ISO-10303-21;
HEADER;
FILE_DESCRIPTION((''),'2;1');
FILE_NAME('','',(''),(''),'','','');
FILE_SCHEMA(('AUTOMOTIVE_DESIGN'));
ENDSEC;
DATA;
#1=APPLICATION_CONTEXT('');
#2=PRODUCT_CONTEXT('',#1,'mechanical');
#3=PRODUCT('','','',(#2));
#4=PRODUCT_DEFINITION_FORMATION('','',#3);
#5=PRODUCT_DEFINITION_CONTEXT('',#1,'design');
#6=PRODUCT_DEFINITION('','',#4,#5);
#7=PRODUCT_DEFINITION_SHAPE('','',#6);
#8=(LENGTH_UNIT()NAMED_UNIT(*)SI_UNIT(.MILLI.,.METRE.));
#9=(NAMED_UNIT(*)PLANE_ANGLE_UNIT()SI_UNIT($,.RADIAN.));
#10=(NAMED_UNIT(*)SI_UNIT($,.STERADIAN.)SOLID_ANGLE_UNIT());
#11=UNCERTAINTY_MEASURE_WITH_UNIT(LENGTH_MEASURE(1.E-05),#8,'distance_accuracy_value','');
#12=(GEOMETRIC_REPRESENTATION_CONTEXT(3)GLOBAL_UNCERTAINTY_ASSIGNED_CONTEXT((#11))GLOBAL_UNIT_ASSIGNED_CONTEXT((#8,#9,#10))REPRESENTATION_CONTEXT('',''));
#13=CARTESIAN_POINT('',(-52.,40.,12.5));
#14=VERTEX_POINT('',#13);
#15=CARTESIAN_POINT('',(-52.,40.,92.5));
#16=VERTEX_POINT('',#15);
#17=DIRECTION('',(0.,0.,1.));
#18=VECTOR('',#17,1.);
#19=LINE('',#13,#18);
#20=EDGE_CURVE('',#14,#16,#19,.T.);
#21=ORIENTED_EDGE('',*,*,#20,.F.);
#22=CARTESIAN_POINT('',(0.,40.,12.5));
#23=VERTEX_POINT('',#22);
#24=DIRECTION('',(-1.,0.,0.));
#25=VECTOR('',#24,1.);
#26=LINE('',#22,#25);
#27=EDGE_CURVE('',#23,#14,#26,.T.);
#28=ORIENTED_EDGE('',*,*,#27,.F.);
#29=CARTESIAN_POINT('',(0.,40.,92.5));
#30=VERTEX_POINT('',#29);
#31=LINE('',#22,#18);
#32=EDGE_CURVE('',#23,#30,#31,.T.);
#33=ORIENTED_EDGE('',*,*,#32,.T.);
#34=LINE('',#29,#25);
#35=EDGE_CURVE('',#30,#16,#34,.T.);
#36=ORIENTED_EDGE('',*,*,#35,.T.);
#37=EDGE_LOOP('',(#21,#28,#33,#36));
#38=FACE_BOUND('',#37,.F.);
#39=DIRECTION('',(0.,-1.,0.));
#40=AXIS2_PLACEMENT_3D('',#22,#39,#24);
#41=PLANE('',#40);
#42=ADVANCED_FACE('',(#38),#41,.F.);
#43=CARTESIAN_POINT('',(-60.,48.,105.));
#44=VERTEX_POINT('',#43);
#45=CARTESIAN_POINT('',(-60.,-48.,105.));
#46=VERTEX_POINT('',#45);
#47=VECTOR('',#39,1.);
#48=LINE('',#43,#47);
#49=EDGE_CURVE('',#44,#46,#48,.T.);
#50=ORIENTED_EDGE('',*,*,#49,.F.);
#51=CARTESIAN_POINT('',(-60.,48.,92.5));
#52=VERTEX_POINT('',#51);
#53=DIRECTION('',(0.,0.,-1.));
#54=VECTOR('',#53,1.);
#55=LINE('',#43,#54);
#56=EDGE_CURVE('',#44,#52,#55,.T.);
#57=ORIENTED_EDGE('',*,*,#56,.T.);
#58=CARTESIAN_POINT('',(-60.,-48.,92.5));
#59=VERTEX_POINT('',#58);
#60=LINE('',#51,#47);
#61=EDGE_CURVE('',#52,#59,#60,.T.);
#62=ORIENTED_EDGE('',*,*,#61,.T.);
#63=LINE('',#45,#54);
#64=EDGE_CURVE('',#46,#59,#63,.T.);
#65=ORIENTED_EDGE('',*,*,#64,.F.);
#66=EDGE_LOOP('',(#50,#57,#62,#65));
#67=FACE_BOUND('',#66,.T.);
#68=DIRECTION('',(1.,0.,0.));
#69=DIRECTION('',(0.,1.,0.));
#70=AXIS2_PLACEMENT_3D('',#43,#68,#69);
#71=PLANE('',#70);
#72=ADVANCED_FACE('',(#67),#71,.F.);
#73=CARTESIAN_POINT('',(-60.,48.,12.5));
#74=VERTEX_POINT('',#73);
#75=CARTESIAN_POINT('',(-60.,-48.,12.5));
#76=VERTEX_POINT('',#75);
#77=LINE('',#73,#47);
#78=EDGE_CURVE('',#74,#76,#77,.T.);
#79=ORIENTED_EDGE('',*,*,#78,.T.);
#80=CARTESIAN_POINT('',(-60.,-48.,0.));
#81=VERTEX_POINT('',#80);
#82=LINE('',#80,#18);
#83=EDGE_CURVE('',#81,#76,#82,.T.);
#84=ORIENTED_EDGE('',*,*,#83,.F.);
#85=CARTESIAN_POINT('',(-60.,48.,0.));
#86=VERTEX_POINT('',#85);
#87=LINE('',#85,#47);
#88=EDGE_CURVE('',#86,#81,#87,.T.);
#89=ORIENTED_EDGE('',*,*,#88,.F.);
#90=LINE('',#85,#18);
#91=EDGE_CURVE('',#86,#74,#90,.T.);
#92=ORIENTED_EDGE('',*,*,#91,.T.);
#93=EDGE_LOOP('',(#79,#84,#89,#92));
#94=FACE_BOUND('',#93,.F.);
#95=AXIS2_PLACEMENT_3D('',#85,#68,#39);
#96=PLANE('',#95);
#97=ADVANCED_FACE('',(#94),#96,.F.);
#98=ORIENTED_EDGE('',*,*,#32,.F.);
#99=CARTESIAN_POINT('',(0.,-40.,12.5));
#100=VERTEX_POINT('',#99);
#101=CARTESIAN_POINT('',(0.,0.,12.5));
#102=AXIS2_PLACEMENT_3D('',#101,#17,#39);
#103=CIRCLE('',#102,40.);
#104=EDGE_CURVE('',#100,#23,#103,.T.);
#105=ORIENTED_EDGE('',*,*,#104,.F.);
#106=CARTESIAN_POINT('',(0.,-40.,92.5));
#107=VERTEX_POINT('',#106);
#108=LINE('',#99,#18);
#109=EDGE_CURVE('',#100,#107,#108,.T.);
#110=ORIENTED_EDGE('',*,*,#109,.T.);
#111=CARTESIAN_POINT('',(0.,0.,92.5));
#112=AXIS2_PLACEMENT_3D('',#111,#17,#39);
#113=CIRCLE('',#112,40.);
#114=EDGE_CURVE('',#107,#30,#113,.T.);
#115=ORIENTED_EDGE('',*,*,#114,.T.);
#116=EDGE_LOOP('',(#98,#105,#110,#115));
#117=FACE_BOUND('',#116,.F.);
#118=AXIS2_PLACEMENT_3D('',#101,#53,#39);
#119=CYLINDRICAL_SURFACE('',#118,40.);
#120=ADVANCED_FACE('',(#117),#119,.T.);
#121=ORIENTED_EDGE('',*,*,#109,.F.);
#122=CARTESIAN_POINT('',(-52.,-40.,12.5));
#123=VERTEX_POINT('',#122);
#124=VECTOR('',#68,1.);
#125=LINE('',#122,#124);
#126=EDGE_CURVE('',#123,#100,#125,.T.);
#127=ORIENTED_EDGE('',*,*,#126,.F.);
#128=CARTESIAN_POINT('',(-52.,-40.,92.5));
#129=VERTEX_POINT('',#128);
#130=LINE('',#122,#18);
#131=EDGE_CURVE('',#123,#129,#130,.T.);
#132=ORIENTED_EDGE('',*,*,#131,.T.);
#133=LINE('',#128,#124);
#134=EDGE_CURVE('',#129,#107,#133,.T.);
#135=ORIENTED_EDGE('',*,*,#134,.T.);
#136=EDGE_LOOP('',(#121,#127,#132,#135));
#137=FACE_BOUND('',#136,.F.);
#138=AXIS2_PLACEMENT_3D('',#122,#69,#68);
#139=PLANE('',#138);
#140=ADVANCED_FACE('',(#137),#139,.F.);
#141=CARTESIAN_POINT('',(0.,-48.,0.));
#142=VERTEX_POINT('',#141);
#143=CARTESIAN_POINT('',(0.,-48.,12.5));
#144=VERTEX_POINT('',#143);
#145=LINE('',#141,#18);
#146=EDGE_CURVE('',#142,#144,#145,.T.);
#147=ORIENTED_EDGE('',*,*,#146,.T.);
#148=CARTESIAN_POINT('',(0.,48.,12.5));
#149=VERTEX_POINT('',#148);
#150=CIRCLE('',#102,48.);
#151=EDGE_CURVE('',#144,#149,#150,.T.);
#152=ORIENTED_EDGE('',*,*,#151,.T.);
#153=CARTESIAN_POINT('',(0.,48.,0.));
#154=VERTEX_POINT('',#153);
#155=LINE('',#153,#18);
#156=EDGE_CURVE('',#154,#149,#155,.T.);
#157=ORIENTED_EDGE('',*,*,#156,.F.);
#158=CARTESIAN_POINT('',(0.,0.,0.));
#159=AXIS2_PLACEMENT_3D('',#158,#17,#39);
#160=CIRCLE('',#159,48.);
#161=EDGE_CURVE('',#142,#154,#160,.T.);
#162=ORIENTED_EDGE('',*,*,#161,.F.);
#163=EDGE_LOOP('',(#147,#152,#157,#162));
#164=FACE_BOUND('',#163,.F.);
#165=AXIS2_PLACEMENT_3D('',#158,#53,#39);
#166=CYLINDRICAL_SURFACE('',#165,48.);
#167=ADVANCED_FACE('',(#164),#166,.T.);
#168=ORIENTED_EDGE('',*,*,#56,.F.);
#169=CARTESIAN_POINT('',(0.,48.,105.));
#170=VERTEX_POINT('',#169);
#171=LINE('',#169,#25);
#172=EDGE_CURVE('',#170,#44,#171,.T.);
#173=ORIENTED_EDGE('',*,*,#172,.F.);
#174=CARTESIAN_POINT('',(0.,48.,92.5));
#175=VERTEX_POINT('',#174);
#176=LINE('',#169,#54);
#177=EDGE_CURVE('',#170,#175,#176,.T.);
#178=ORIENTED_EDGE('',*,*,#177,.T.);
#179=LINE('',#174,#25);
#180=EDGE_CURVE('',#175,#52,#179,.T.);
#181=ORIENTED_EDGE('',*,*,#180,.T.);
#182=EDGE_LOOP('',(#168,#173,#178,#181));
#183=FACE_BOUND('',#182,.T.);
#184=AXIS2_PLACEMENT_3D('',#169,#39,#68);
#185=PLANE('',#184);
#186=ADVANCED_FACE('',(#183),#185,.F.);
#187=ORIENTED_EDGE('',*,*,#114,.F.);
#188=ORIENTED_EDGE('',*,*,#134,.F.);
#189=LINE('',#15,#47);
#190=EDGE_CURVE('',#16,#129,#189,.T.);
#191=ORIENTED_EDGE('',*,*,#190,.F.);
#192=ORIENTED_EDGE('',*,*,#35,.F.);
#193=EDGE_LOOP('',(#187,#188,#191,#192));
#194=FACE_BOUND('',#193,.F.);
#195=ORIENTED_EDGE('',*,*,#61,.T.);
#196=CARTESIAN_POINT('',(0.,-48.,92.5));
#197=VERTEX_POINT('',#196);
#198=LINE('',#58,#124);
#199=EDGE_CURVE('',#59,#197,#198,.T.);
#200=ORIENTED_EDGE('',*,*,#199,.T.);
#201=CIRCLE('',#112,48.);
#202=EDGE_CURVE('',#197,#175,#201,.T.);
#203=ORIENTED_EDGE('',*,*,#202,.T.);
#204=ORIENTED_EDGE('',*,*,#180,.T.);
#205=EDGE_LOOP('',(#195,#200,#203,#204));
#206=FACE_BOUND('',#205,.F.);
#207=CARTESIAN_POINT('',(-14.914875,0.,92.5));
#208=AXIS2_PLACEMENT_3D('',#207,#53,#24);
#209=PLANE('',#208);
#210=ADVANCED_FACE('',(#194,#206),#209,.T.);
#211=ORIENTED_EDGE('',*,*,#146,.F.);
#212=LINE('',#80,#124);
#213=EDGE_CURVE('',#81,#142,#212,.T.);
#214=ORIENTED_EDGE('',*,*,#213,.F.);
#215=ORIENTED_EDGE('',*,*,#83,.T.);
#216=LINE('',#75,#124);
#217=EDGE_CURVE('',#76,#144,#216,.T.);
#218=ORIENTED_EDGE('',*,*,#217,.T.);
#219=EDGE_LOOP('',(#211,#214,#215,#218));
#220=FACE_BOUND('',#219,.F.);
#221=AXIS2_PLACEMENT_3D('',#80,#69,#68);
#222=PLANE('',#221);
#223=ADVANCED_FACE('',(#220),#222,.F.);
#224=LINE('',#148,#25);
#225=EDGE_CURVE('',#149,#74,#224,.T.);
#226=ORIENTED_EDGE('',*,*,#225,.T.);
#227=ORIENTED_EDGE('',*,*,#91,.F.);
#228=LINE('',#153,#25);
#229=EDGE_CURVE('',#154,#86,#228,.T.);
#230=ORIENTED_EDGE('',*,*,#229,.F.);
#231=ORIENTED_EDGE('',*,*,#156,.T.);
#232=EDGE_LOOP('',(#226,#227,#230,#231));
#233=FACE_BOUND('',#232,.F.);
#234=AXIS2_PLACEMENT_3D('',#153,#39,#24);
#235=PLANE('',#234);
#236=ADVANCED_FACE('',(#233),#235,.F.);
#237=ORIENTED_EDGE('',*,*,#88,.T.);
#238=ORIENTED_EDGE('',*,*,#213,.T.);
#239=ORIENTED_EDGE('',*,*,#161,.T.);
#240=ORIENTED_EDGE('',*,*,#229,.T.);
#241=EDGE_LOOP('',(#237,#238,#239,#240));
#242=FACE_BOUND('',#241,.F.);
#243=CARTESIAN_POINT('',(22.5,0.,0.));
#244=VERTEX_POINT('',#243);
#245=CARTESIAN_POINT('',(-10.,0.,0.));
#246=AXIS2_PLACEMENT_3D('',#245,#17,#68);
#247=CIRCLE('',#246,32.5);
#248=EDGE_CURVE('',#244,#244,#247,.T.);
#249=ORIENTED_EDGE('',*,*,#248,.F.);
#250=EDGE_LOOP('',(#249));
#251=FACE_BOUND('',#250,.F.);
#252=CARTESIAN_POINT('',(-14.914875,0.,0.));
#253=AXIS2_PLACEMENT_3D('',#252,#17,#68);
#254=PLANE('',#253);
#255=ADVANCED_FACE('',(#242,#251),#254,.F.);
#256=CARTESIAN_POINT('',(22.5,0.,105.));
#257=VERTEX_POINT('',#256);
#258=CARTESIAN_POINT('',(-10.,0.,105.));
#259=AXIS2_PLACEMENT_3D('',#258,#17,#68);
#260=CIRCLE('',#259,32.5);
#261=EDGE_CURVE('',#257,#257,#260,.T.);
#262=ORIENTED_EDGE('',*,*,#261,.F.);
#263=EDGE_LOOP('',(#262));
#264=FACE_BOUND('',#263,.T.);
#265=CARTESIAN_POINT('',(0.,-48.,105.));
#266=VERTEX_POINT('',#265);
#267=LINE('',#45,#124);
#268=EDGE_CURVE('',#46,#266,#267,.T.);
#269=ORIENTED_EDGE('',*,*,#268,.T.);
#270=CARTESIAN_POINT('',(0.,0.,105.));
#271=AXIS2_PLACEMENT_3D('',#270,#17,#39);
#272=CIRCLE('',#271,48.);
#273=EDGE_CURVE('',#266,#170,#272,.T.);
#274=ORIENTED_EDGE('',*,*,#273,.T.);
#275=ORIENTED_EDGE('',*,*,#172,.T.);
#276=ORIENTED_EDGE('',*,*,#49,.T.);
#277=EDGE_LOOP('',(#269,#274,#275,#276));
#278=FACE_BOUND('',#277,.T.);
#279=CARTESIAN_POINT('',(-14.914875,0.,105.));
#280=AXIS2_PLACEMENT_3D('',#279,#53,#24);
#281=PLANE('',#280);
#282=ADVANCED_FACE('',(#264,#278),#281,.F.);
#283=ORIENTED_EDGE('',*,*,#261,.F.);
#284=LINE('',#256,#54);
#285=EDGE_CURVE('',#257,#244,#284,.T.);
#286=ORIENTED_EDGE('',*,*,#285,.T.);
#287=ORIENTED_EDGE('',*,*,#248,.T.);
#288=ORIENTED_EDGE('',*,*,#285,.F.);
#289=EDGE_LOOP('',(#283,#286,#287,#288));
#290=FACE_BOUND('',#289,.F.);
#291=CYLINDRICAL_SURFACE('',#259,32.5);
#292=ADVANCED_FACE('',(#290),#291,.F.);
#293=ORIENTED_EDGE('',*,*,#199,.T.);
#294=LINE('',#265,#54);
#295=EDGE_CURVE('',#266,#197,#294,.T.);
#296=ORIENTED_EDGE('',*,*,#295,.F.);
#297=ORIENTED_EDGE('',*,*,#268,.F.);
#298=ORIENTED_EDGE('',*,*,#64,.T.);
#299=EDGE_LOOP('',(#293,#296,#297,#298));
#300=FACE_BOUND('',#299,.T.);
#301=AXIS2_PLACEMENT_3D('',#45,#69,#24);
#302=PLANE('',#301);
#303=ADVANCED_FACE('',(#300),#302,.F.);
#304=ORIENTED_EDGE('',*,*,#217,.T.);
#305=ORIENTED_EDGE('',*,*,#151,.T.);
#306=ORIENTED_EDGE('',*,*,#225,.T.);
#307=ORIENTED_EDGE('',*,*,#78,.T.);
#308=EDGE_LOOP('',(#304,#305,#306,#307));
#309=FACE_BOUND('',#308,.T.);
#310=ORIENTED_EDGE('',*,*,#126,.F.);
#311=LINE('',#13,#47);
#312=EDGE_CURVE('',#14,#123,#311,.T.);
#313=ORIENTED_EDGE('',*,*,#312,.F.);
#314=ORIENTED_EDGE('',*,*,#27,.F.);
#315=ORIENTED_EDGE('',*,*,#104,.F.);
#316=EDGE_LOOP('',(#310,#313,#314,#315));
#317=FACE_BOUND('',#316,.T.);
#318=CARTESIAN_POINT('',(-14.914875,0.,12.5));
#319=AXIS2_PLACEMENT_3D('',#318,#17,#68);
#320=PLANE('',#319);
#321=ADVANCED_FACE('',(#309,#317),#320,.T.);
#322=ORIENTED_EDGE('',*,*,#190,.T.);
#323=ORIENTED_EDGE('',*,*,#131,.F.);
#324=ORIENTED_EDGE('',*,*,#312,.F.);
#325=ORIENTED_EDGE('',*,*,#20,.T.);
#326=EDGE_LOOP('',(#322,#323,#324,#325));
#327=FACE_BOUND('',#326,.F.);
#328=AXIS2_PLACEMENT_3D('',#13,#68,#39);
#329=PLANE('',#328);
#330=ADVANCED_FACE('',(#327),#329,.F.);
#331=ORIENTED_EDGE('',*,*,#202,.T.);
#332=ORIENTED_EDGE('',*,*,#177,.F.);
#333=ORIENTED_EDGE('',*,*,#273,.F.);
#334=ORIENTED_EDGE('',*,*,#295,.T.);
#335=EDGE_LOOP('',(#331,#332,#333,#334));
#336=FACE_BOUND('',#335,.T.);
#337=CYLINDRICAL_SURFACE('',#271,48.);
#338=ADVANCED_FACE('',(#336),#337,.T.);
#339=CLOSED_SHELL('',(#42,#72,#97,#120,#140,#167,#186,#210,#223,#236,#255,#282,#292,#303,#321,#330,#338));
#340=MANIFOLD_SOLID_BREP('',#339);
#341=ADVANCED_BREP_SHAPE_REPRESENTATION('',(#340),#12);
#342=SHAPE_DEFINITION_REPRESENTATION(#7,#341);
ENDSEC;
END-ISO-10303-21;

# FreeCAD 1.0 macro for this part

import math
import FreeCAD as App
import Part
import Sketcher

V = App.Vector

doc = App.newDocument("Part")
params = doc.addObject("Spreadsheet::Sheet", "Params")
for row, (alias, value) in enumerate([
    ("sketch1_radius", "48 mm"),
    ("sketch1_width", "60 mm"),
    ("pad1_length", "12.5 mm"),
    ("sketch2_radius", "40 mm"),
    ("sketch2_width", "52 mm"),
    ("pad2_length", "80 mm"),
    ("sketch3_diameter", "65 mm"),
    ("pocket1_length", "120 mm"),
], start=1):
    params.set(f"A{row}", alias)
    params.set(f"B{row}", "=" + value)
    params.setAlias(f"B{row}", alias)

body = doc.addObject("PartDesign::Body", "Body")

# Sketch on XY plane
sketch1 = doc.addObject("Sketcher::SketchObject", "Sketch")
body.addObject(sketch1)
sketch1.AttachmentSupport = (doc.XY_Plane, [""])
sketch1.MapMode = "FlatFace"
sketch1.addGeometry([
    Part.LineSegment(V(0, 48, 0), V(-60, 48, 0)),
    Part.LineSegment(V(-60, 48, 0), V(-60, -48, 0)),
    Part.LineSegment(V(-60, -48, 0), V(0, -48, 0)),
    Part.ArcOfCircle(Part.Circle(V(0, 0, 0), V(0, 0, 1), 48), math.radians(-90), math.radians(90)),
], False)
sketch1.addConstraint([
    Sketcher.Constraint("Coincident", 0, 2, 1, 1),
    Sketcher.Constraint("Coincident", 1, 2, 2, 1),
    Sketcher.Constraint("Tangent", 2, 2, 3, 1),
    Sketcher.Constraint("Tangent", 3, 2, 0, 1),
    Sketcher.Constraint("Horizontal", 0),
    Sketcher.Constraint("Vertical", 1),
    Sketcher.Constraint("Horizontal", 2),
    Sketcher.Constraint("Coincident", 3, 3, -1, 1),
    Sketcher.Constraint("Radius", 3, 48.0),
    Sketcher.Constraint("DistanceX", 0, 2, 0, 1, 60.0),
])
sketch1.setExpression("Constraints[8]", "Params.sketch1_radius")
sketch1.setExpression("Constraints[9]", "Params.sketch1_width")
pad1 = doc.addObject("PartDesign::Pad", "Pad")
body.addObject(pad1)
pad1.Profile = sketch1
pad1.setExpression("Length", "Params.pad1_length")

# Sketch on XY plane
sketch2 = doc.addObject("Sketcher::SketchObject", "Sketch001")
body.addObject(sketch2)
sketch2.AttachmentSupport = (doc.XY_Plane, [""])
sketch2.MapMode = "FlatFace"
sketch2.AttachmentOffset = App.Placement(V(0, 0, 12.5), App.Rotation())
sketch2.addGeometry([
    Part.LineSegment(V(0, 40, 0), V(-52, 40, 0)),
    Part.LineSegment(V(-52, 40, 0), V(-52, -40, 0)),
    Part.LineSegment(V(-52, -40, 0), V(0, -40, 0)),
    Part.ArcOfCircle(Part.Circle(V(0, 0, 0), V(0, 0, 1), 40), math.radians(-90), math.radians(90)),
], False)
sketch2.addConstraint([
    Sketcher.Constraint("Coincident", 0, 2, 1, 1),
    Sketcher.Constraint("Coincident", 1, 2, 2, 1),
    Sketcher.Constraint("Tangent", 2, 2, 3, 1),
    Sketcher.Constraint("Tangent", 3, 2, 0, 1),
    Sketcher.Constraint("Horizontal", 0),
    Sketcher.Constraint("Vertical", 1),
    Sketcher.Constraint("Horizontal", 2),
    Sketcher.Constraint("Coincident", 3, 3, -1, 1),
    Sketcher.Constraint("Radius", 3, 40.0),
    Sketcher.Constraint("DistanceX", 0, 2, 0, 1, 52.0),
])
sketch2.setExpression("Constraints[8]", "Params.sketch2_radius")
sketch2.setExpression("Constraints[9]", "Params.sketch2_width")
pad2 = doc.addObject("PartDesign::Pad", "Pad001")
body.addObject(pad2)
pad2.Profile = sketch2
pad2.setExpression("Length", "Params.pad2_length")
body2 = doc.addObject("PartDesign::Body", "Body001")
doc.recompute()

body2.BaseFeature = body
doc.recompute()

mirroring = doc.addObject("Part::Mirroring", "Mirroring")
mirroring.Source = body
mirroring.Base = V(0, 0, 52.5)
mirroring.Normal = V(0, 0, 1)
body3 = doc.addObject("PartDesign::Body", "Body002")
body3.BaseFeature = mirroring
boolean = doc.addObject("PartDesign::Boolean", "Boolean")
body2.addObject(boolean)
boolean.Type = "Fuse"
boolean.addObjects([body3])
doc.recompute()

# Sketch on XY plane
sketch3 = doc.addObject("Sketcher::SketchObject", "Sketch002")
body2.addObject(sketch3)
sketch3.AttachmentSupport = (doc.getObject("XY_Plane001"), [""])
sketch3.MapMode = "FlatFace"
sketch3.AttachmentOffset = App.Placement(V(0, 0, 105), App.Rotation())
sketch3.addGeometry(Part.Circle(V(-10, 0, 0), V(0, 0, 1), 32), False)
sketch3.addConstraint([
    Sketcher.Constraint("PointOnObject", 0, 3, -1),
    Sketcher.Constraint("Diameter", 0, 65.0),
    Sketcher.Constraint("DistanceX", 0, 3, -1, 1, 10.0),
])
sketch3.setExpression("Constraints[1]", "Params.sketch3_diameter")
pocket1 = doc.addObject("PartDesign::Pocket", "Pocket")
body2.addObject(pocket1)
pocket1.Profile = sketch3
pocket1.setExpression("Length", "Params.pocket1_length")
mirroring.Visibility = False

doc.recompute()
